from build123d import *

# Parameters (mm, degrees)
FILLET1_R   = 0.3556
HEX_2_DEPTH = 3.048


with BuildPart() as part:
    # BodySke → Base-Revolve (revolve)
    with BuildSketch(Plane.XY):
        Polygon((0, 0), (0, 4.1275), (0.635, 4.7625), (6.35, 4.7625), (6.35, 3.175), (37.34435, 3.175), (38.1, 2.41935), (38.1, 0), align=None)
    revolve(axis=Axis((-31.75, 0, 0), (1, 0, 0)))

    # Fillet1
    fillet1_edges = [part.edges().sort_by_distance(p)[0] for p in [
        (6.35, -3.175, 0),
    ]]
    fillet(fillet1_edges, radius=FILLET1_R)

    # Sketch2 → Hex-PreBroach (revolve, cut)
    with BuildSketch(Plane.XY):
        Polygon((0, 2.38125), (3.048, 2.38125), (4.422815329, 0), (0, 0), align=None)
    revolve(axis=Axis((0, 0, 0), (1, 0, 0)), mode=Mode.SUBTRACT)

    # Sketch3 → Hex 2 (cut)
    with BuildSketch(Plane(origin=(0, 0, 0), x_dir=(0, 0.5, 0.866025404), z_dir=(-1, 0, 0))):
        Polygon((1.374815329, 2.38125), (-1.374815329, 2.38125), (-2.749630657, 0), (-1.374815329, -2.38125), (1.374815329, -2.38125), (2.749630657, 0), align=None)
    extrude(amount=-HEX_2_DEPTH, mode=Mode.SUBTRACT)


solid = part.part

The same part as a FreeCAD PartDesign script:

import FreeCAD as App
import Part
import Sketcher

V = App.Vector
Q = App.Units.Quantity


def edges_at(feature, points):
    """Names of the edges that pass closest to the given points."""
    edges = feature.Shape.Edges
    near = lambda p: min(range(len(edges)), key=lambda i: edges[i].distToShape(Part.Vertex(*p))[0])
    return sorted({f"Edge{near(p) + 1}" for p in points})

doc = App.newDocument("Part")
body = doc.addObject("PartDesign::Body", "Body")

# Sketch on XY plane
sketch1 = doc.addObject("Sketcher::SketchObject", "Sketch")
body.addObject(sketch1)
sketch1.AttachmentSupport = (doc.XY_Plane, [""])
sketch1.MapMode = "FlatFace"
sketch1.addGeometry(Part.LineSegment(V(0, 4.1275, 0), V(0, 0, 0)), False)
sketch1.addGeometry(Part.LineSegment(V(0, 0, 0), V(38.1, 0, 0)), False)
sketch1.addGeometry(Part.LineSegment(V(38.1, 0, 0), V(38.1, 2.41935, 0)), False)
sketch1.addGeometry(Part.LineSegment(V(38.1, 2.41935, 0), V(37.34435, 3.175, 0)), False)
sketch1.addGeometry(Part.LineSegment(V(37.34435, 3.175, 0), V(6.35, 3.175, 0)), False)
sketch1.addGeometry(Part.LineSegment(V(6.35, 3.175, 0), V(6.35, 4.7625, 0)), False)
sketch1.addGeometry(Part.LineSegment(V(6.35, 4.7625, 0), V(0.635, 4.7625, 0)), False)
sketch1.addGeometry(Part.LineSegment(V(0.635, 4.7625, 0), V(0, 4.1275, 0)), False)
sketch1.addConstraint(Sketcher.Constraint("Coincident", 0, 2, 1, 1))
sketch1.addConstraint(Sketcher.Constraint("Coincident", 1, 2, 2, 1))
sketch1.addConstraint(Sketcher.Constraint("Coincident", 2, 2, 3, 1))
sketch1.addConstraint(Sketcher.Constraint("Coincident", 3, 2, 4, 1))
sketch1.addConstraint(Sketcher.Constraint("Coincident", 4, 2, 5, 1))
sketch1.addConstraint(Sketcher.Constraint("Coincident", 5, 2, 6, 1))
sketch1.addConstraint(Sketcher.Constraint("Coincident", 6, 2, 7, 1))
sketch1.addConstraint(Sketcher.Constraint("Coincident", 7, 2, 0, 1))
sketch1.addConstraint(Sketcher.Constraint("Vertical", 0))
sketch1.addConstraint(Sketcher.Constraint("Horizontal", 1))
sketch1.addConstraint(Sketcher.Constraint("Vertical", 2))
sketch1.addConstraint(Sketcher.Constraint("Horizontal", 4))
sketch1.addConstraint(Sketcher.Constraint("Vertical", 5))
sketch1.addConstraint(Sketcher.Constraint("Horizontal", 6))
sketch1.addConstraint(Sketcher.Constraint("Coincident", 0, 2, -1, 1))
sketch1.addConstraint(Sketcher.Constraint("Perpendicular", 3, 7))
sketch1.addConstraint(Sketcher.Constraint("DistanceX", 1, 1, 1, 2, Q("1.5 in")))
sketch1.addConstraint(Sketcher.Constraint("Angle", 3, Q("135 deg")))
sketch1.addConstraint(Sketcher.Constraint("DistanceX", 6, 2, 6, 1, Q("0.225 in")))
sketch1.addConstraint(Sketcher.Constraint("DistanceY", 5, 1, 5, 2, Q("0.0625 in")))
sketch1.addConstraint(Sketcher.Constraint("DistanceX", -1, 1, 4, 2, Q("0.25 in")))
sketch1.addConstraint(Sketcher.Constraint("DistanceY", 0, 2, 0, 1, Q("0.1625 in")))
sketch1.addConstraint(Sketcher.Constraint("DistanceX", 4, 2, 4, 1, 30.99435))
revolution = doc.addObject("PartDesign::Revolution", "Revolution")
body.addObject(revolution)
revolution.Profile = sketch1
revolution.ReferenceAxis = (sketch1, ["H_Axis"])
revolution.Angle = 360
doc.recompute()

fillet = doc.addObject("PartDesign::Fillet", "Fillet")
body.addObject(fillet)
fillet.Base = (revolution, edges_at(revolution, [(6.35, -3.175, 0)]))
fillet.Radius = Q("0.014 in")

# Sketch on XY plane
sketch2 = doc.addObject("Sketcher::SketchObject", "Sketch001")
body.addObject(sketch2)
sketch2.AttachmentSupport = (doc.XY_Plane, [""])
sketch2.MapMode = "FlatFace"
sketch2.addGeometry(Part.LineSegment(V(3.048, 2.38125, 0), V(0, 2.38125, 0)), False)
sketch2.addGeometry(Part.LineSegment(V(0, 2.38125, 0), V(0, 0, 0)), False)
sketch2.addGeometry(Part.LineSegment(V(0, 0, 0), V(4.422815, 0, 0)), False)
sketch2.addGeometry(Part.LineSegment(V(4.422815, 0, 0), V(3.048, 2.38125, 0)), False)
sketch2.addConstraint(Sketcher.Constraint("Coincident", 0, 2, 1, 1))
sketch2.addConstraint(Sketcher.Constraint("Coincident", 1, 2, 2, 1))
sketch2.addConstraint(Sketcher.Constraint("Coincident", 2, 2, 3, 1))
sketch2.addConstraint(Sketcher.Constraint("Coincident", 3, 2, 0, 1))
sketch2.addConstraint(Sketcher.Constraint("Horizontal", 0))
sketch2.addConstraint(Sketcher.Constraint("Vertical", 1))
sketch2.addConstraint(Sketcher.Constraint("Horizontal", 2))
sketch2.addConstraint(Sketcher.Constraint("Coincident", 1, 2, -1, 1))
sketch2.addConstraint(Sketcher.Constraint("Angle", 3, Q("120 deg")))
sketch2.addConstraint(Sketcher.Constraint("DistanceX", 0, 2, 0, 1, Q("0.12 in")))
sketch2.addConstraint(Sketcher.Constraint("DistanceY", 1, 2, 1, 1, Q("0.09375 in")))
groove = doc.addObject("PartDesign::Groove", "Groove")
body.addObject(groove)
groove.Profile = sketch2
groove.ReferenceAxis = (sketch2, ["H_Axis"])
groove.Angle = 360

# Sketch on YZ plane
sketch3 = doc.addObject("Sketcher::SketchObject", "Sketch002")
body.addObject(sketch3)
sketch3.AttachmentSupport = (doc.YZ_Plane, [""])
sketch3.MapMode = "FlatFace"
sketch3.addGeometry(Part.LineSegment(V(2.749631, 0, 0), V(1.374815, -2.38125, 0)), False)
sketch3.addGeometry(Part.LineSegment(V(1.374815, -2.38125, 0), V(-1.374815, -2.38125, 0)), False)
sketch3.addGeometry(Part.LineSegment(V(-1.374815, -2.38125, 0), V(-2.749631, 0, 0)), False)
sketch3.addGeometry(Part.LineSegment(V(-2.749631, 0, 0), V(-1.374815, 2.38125, 0)), False)
sketch3.addGeometry(Part.LineSegment(V(-1.374815, 2.38125, 0), V(1.374815, 2.38125, 0)), False)
sketch3.addGeometry(Part.LineSegment(V(1.374815, 2.38125, 0), V(2.749631, 0, 0)), False)
sketch3.addConstraint(Sketcher.Constraint("Coincident", 0, 2, 1, 1))
sketch3.addConstraint(Sketcher.Constraint("Coincident", 1, 2, 2, 1))
sketch3.addConstraint(Sketcher.Constraint("Coincident", 2, 2, 3, 1))
sketch3.addConstraint(Sketcher.Constraint("Coincident", 3, 2, 4, 1))
sketch3.addConstraint(Sketcher.Constraint("Coincident", 4, 2, 5, 1))
sketch3.addConstraint(Sketcher.Constraint("Coincident", 5, 2, 0, 1))
sketch3.addConstraint(Sketcher.Constraint("Horizontal", 1))
sketch3.addConstraint(Sketcher.Constraint("Horizontal", 4))
sketch3.addConstraint(Sketcher.Constraint("Symmetric", 0, 2, 3, 2, -1, 1))
sketch3.addConstraint(Sketcher.Constraint("Symmetric", 2, 2, 5, 2, -1, 1))
sketch3.addConstraint(Sketcher.Constraint("PointOnObject", 2, 2, -1))
sketch3.addConstraint(Sketcher.Constraint("Parallel", 2, 5))
sketch3.addConstraint(Sketcher.Constraint("Vertical", 1, 2, 3, 2))
sketch3.addConstraint(Sketcher.Constraint("Angle", 0, Q("-120 deg")))
sketch3.addConstraint(Sketcher.Constraint("DistanceY", 0, 2, -1, 1, Q("0.09375 in")))
sketch3.addConstraint(Sketcher.Constraint("DistanceX", 1, 2, 1, 1, 2.749631))
pocket1 = doc.addObject("PartDesign::Pocket", "Pocket")
body.addObject(pocket1)
pocket1.Profile = sketch3
pocket1.Length = Q("0.12 in")
pocket1.Reversed = True

doc.recompute()
